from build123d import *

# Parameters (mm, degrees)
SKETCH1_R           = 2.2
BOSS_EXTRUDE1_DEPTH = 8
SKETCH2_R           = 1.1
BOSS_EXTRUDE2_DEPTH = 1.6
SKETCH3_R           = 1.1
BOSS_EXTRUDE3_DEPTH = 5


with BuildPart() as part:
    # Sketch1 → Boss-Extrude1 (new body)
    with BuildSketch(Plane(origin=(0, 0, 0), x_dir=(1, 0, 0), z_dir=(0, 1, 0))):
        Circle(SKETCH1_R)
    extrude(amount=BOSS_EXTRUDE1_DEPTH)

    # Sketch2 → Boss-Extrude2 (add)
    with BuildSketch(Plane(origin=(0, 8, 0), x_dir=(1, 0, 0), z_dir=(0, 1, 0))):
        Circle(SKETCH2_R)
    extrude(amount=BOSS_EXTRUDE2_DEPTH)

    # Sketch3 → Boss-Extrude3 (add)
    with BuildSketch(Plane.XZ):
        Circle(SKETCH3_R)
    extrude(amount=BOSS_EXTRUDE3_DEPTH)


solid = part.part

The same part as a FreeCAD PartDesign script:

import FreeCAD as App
import Part
import Sketcher
from FreeCAD import Vector
Q = App.Units.Quantity

doc = App.newDocument("Part")
body = doc.addObject("PartDesign::Body", "Body")

# Sketch on XZ plane
sketch1 = body.newObject("Sketcher::SketchObject", "Sketch")
sketch1.AttachmentSupport = (doc.getObject("XZ_Plane"), [""])
sketch1.MapMode = "FlatFace"
sketch1.addGeometry(Part.Circle(Vector(0, 0, 0), Vector(0, 0, 1), 2.2), False)
sketch1.addConstraint([
    Sketcher.Constraint("Coincident", 0, 3, -1, 1),
    Sketcher.Constraint("Diameter", 0, Q("4.4 mm")),
])
pad1 = body.newObject("PartDesign::Pad", "Pad")
pad1.Profile = sketch1
pad1.Length = 8
pad1.Reversed = True

# Sketch on XZ plane
sketch2 = body.newObject("Sketcher::SketchObject", "Sketch001")
sketch2.AttachmentSupport = (doc.getObject("XZ_Plane"), [""])
sketch2.MapMode = "FlatFace"
sketch2.AttachmentOffset = App.Placement(Vector(0, 0, -8), App.Rotation())
sketch2.addGeometry(Part.Circle(Vector(0, 0, 0), Vector(0, 0, 1), 1.1), False)
sketch2.addConstraint([
    Sketcher.Constraint("Coincident", 0, 3, -1, 1),
    Sketcher.Constraint("Diameter", 0, Q("2.2 mm")),
])
pad2 = body.newObject("PartDesign::Pad", "Pad001")
pad2.Profile = sketch2
pad2.Length = 1.6
pad2.Reversed = True

# Sketch on XZ plane
sketch3 = body.newObject("Sketcher::SketchObject", "Sketch002")
sketch3.AttachmentSupport = (doc.getObject("XZ_Plane"), [""])
sketch3.MapMode = "FlatFace"
sketch3.addGeometry(Part.Circle(Vector(0, 0, 0), Vector(0, 0, 1), 1.1), False)
sketch3.addConstraint([
    Sketcher.Constraint("Coincident", 0, 3, -1, 1),
    Sketcher.Constraint("Diameter", 0, Q("2.2 mm")),
])
pad3 = body.newObject("PartDesign::Pad", "Pad002")
pad3.Profile = sketch3
pad3.Length = 5

doc.recompute()
